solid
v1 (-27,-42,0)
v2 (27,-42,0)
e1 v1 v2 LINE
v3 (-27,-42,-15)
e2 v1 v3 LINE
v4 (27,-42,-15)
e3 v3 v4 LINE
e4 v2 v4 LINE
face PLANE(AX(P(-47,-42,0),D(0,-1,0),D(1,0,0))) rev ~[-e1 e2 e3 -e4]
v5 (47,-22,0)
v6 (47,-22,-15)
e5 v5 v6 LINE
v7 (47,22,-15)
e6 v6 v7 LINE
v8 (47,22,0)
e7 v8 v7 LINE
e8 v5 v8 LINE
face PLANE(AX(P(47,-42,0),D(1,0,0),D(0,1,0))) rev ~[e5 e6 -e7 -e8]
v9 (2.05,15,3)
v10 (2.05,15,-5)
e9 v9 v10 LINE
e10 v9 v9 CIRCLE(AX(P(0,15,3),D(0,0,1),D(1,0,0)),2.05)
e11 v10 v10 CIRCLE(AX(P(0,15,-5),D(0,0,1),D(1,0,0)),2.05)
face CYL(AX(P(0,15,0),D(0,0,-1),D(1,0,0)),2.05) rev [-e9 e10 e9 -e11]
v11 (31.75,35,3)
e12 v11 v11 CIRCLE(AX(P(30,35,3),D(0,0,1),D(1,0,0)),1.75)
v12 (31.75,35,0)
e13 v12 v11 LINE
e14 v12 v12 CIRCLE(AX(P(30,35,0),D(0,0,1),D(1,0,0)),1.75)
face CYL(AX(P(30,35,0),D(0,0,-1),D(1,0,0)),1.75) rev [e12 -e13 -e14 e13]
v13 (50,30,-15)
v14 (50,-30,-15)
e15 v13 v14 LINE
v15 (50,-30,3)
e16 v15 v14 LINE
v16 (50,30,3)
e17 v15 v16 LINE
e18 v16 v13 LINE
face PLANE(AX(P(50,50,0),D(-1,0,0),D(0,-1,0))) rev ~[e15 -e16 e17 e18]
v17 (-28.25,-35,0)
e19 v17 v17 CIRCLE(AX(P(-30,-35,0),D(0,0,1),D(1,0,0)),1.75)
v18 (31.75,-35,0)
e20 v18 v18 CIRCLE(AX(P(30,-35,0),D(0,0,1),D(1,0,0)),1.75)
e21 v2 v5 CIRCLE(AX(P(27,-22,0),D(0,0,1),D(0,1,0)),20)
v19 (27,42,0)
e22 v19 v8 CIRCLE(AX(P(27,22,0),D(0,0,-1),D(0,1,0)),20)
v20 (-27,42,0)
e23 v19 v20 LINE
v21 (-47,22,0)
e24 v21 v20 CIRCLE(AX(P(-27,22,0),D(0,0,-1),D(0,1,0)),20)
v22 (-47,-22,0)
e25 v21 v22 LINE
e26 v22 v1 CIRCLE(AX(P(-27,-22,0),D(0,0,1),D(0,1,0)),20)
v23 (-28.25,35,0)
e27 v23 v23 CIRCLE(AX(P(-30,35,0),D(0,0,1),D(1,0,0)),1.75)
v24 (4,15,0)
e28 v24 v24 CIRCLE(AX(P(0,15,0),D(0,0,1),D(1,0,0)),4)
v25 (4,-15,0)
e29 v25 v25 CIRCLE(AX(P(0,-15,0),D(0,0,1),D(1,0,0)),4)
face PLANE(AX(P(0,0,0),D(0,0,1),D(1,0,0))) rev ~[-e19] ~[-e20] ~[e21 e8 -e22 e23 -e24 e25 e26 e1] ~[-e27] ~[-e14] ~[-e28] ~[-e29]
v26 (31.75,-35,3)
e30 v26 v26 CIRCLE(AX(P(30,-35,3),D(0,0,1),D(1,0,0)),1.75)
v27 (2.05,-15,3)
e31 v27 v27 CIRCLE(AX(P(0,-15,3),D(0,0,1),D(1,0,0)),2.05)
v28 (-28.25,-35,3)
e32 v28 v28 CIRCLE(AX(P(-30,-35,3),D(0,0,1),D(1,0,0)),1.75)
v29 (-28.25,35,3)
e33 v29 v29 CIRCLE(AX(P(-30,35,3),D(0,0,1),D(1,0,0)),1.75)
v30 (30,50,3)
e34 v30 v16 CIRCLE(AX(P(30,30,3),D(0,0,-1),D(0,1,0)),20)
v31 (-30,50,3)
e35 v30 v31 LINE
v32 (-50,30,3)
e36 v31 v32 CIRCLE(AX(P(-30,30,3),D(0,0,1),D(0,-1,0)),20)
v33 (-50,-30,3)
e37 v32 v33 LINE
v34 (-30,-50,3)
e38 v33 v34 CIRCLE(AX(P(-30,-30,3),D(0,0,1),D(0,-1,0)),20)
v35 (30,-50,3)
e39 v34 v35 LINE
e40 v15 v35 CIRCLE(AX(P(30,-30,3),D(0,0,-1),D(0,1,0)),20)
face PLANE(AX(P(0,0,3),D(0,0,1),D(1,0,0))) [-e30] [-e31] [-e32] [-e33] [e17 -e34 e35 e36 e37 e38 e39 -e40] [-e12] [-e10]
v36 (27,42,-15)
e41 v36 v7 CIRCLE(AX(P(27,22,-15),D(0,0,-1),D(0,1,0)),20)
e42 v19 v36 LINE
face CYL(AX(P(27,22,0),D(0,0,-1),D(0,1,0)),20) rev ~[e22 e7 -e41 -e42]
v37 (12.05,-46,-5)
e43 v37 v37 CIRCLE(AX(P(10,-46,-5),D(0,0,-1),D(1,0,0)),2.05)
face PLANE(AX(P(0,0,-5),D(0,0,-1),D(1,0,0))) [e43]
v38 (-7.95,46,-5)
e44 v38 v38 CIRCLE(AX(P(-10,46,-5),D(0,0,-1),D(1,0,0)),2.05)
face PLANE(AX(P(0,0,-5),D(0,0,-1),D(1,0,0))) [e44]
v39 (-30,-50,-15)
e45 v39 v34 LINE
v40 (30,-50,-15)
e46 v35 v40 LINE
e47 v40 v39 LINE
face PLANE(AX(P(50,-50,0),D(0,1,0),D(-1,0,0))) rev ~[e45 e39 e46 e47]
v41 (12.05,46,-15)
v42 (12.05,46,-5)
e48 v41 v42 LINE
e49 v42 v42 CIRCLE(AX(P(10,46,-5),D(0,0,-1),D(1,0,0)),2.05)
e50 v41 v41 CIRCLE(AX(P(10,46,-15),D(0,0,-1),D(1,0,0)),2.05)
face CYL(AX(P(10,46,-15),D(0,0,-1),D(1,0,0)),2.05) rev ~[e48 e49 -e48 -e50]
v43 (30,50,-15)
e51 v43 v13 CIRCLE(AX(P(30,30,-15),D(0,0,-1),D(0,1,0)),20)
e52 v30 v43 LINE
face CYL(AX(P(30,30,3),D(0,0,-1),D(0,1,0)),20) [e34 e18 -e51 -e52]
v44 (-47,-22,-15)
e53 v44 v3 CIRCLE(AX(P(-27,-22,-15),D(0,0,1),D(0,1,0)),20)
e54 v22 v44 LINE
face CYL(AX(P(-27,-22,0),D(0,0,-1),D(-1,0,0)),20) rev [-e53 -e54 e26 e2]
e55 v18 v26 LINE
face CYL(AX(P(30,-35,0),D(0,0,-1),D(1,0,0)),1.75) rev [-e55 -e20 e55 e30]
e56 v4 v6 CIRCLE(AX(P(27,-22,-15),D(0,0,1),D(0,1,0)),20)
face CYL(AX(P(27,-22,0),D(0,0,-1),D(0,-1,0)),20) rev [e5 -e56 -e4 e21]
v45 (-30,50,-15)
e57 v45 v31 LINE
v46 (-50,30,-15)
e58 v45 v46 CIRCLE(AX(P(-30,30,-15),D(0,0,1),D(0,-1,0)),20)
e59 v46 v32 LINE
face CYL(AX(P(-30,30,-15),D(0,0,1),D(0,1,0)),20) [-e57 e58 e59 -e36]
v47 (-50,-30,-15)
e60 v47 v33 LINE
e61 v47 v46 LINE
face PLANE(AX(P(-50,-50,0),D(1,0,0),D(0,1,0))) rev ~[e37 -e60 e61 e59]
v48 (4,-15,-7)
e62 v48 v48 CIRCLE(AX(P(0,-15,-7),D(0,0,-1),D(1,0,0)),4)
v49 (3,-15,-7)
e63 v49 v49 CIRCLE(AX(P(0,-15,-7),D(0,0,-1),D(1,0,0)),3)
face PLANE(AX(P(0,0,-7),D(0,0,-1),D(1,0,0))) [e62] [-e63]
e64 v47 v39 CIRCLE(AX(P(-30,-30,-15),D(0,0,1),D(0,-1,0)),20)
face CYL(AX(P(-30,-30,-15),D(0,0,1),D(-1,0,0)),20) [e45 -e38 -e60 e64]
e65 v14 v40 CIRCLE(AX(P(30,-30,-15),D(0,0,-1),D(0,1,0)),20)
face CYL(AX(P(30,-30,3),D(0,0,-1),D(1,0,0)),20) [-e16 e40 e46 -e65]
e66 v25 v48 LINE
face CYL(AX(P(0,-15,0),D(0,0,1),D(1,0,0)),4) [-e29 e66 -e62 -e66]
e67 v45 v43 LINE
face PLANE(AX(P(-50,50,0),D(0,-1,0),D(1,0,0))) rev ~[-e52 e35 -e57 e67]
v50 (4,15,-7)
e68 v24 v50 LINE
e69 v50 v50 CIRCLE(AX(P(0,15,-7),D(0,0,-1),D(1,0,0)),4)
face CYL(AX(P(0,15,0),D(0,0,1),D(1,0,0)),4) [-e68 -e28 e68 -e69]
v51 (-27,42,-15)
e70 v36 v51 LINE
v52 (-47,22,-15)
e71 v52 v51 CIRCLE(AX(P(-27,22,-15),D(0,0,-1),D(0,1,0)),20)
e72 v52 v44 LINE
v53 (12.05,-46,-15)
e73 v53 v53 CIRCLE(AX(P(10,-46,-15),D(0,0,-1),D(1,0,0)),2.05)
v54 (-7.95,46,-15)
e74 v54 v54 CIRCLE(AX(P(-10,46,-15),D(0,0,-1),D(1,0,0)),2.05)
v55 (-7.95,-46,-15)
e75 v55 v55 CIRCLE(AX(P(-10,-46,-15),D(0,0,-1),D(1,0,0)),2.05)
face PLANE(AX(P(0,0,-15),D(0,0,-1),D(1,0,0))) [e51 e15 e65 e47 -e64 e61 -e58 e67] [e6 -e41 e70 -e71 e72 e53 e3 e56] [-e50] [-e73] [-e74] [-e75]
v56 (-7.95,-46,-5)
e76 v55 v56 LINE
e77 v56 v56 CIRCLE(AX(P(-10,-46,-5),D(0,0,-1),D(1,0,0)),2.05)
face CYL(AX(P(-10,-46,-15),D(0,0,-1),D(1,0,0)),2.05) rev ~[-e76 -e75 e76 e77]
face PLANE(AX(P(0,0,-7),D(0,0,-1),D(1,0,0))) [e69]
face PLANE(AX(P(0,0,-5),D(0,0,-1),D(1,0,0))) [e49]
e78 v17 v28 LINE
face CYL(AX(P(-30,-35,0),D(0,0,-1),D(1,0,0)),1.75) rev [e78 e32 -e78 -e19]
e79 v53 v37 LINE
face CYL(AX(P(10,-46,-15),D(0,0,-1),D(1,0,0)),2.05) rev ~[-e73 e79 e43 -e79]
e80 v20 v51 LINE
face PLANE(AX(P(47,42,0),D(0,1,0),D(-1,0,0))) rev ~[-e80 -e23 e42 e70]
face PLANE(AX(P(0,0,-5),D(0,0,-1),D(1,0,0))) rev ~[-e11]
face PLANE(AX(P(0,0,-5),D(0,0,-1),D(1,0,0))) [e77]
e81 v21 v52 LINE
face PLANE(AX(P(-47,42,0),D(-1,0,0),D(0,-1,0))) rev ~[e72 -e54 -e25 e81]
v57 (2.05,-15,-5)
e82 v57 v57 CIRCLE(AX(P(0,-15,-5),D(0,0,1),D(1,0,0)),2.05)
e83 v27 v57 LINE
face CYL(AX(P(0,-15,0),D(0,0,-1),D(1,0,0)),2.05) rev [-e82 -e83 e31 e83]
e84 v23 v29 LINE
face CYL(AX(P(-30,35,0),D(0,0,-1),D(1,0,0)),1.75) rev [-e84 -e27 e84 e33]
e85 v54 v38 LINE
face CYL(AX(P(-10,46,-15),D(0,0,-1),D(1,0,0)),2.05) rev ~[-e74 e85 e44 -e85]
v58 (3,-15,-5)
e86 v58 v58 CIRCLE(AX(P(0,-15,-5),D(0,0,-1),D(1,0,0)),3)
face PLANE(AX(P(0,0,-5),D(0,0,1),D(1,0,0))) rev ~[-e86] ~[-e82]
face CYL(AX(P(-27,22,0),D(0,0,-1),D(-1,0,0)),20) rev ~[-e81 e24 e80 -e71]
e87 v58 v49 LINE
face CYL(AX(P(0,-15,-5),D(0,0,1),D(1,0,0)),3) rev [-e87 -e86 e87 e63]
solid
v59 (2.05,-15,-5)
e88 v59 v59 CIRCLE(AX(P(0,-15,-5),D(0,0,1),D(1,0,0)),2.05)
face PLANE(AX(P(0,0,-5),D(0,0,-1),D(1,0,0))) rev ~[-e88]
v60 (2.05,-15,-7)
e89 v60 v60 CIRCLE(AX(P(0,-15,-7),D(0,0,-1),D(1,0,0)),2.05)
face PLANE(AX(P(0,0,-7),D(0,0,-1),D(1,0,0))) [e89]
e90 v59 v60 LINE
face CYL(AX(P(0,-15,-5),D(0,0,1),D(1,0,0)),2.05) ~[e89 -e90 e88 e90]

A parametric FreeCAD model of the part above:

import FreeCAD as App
import Part
import Sketcher
from FreeCAD import Vector


def edges_at(feature, points):
    """Names of the edges that pass closest to the given points."""
    edges = feature.Shape.Edges
    near = lambda p: min(range(len(edges)), key=lambda i: edges[i].distToShape(Part.Vertex(*p))[0])
    return sorted({f"Edge{near(p) + 1}" for p in points})

doc = App.newDocument("Part")
params = doc.addObject("Spreadsheet::Sheet", "Params")
for row, (alias, value) in enumerate([
    ("sketch1_diameter", "3.5 mm"),
    ("sketch1_diameter2", "4.1 mm"),
    ("sketch1_width", "100 mm"),
    ("pad1_length", "3 mm"),
    ("sketch2_diameter", "8 mm"),
    ("sketch2_diameter2", "4.1 mm"),
    ("pad2_length", "5 mm"),
    ("sketch3_diameter", "8 mm"),
    ("sketch3_diameter2", "6 mm"),
    ("sketch3_diameter3", "4.1 mm"),
    ("pad3_length", "2 mm"),
    ("sketch4_width", "100 mm"),
    ("pad4_length", "15 mm"),
    ("sketch5_diameter", "4.1 mm"),
    ("pocket1_length", "10 mm"),
    ("fillet_radius", "20 mm"),
], start=1):
    params.set(f"A{row}", alias)
    params.set(f"B{row}", "=" + value)
    params.setAlias(f"B{row}", alias)

body = doc.addObject("PartDesign::Body", "Body")
body.AllowCompound = True

sketch1 = body.newObject("Sketcher::SketchObject", "Sketch")
sketch1.AttachmentSupport = (doc.getObject("XY_Plane"), [""])
sketch1.MapMode = "FlatFace"
sketch1.addGeometry([
    Part.LineSegment(Vector(50, -50, 0), Vector(50, 50, 0)),
    Part.LineSegment(Vector(50, 50, 0), Vector(-50, 50, 0)),
    Part.LineSegment(Vector(-50, 50, 0), Vector(-50, -50, 0)),
    Part.LineSegment(Vector(-50, -50, 0), Vector(50, -50, 0)),
    Part.Circle(Vector(-30, -35, 0), Vector(0, 0, 1), 1.8),
    Part.Circle(Vector(30, -35, 0), Vector(0, 0, 1), 1.8),
    Part.Circle(Vector(-30, 35, 0), Vector(0, 0, 1), 1.8),
    Part.Circle(Vector(30, 35, 0), Vector(0, 0, 1), 1.8),
    Part.Circle(Vector(0, -15, 0), Vector(0, 0, 1), 2),
    Part.Circle(Vector(0, 15, 0), Vector(0, 0, 1), 2),
], False)
sketch1.addConstraint([
    Sketcher.Constraint("Coincident", 0, 2, 1, 1),
    Sketcher.Constraint("Coincident", 1, 2, 2, 1),
    Sketcher.Constraint("Coincident", 2, 2, 3, 1),
    Sketcher.Constraint("Coincident", 3, 2, 0, 1),
    Sketcher.Constraint("Vertical", 0),
    Sketcher.Constraint("Horizontal", 1),
    Sketcher.Constraint("Vertical", 2),
    Sketcher.Constraint("Horizontal", 3),
    Sketcher.Constraint("Equal", 4, 5),
    Sketcher.Constraint("Equal", 5, 6),
    Sketcher.Constraint("Equal", 6, 7),
    Sketcher.Constraint("Equal", 8, 9),
    Sketcher.Constraint("Symmetric", 5, 3, 6, 3, -1, 1),
    Sketcher.Constraint("Symmetric", 4, 3, 7, 3, -1, 1),
    Sketcher.Constraint("Symmetric", 8, 3, 9, 3, -1, 1),
    Sketcher.Constraint("Symmetric", 0, 2, 2, 2, -1, 1),
    Sketcher.Constraint("Symmetric", 4, 3, 5, 3, -2),
    Sketcher.Constraint("PointOnObject", 8, 3, -2),
    Sketcher.Constraint("Equal", 3, 0),
    Sketcher.Constraint("Diameter", 4, 3.5),
    Sketcher.Constraint("Diameter", 8, 4.1),
    Sketcher.Constraint("DistanceX", 1, 2, 1, 1, 100.0),
    Sketcher.Constraint("DistanceX", 4, 3, -1, 1, 30.0),
    Sketcher.Constraint("DistanceY", 4, 3, -1, 1, 35.0),
    Sketcher.Constraint("DistanceY", 8, 3, -1, 1, 15.0),
])
sketch1.setExpression("Constraints[19]", "Params.sketch1_diameter")
sketch1.setExpression("Constraints[20]", "Params.sketch1_diameter2")
sketch1.setExpression("Constraints[21]", "Params.sketch1_width")
pad1 = body.newObject("PartDesign::Pad", "Pad")
pad1.Profile = sketch1
pad1.setExpression("Length", "Params.pad1_length")

sketch2 = body.newObject("Sketcher::SketchObject", "Sketch001")
sketch2.AttachmentSupport = (doc.getObject("XY_Plane"), [""])
sketch2.MapMode = "FlatFace"
sketch2.addGeometry([
    Part.Circle(Vector(0, 15, 0), Vector(0, 0, 1), 4),
    Part.Circle(Vector(0, 15, 0), Vector(0, 0, 1), 2),
    Part.Circle(Vector(0, -15, 0), Vector(0, 0, 1), 4),
    Part.Circle(Vector(0, -15, 0), Vector(0, 0, 1), 2),
], False)
sketch2.addConstraint([
    Sketcher.Constraint("Coincident", 1, 3, 0, 3),
    Sketcher.Constraint("Coincident", 3, 3, 2, 3),
    Sketcher.Constraint("Equal", 0, 2),
    Sketcher.Constraint("Equal", 1, 3),
    Sketcher.Constraint("Symmetric", 0, 3, 2, 3, -1, 1),
    Sketcher.Constraint("PointOnObject", 0, 3, -2),
    Sketcher.Constraint("Diameter", 0, 8.0),
    Sketcher.Constraint("Diameter", 1, 4.1),
    Sketcher.Constraint("DistanceY", -1, 1, 0, 3, 15.0),
])
sketch2.setExpression("Constraints[6]", "Params.sketch2_diameter")
sketch2.setExpression("Constraints[7]", "Params.sketch2_diameter2")
pad2 = body.newObject("PartDesign::Pad", "Pad001")
pad2.Profile = sketch2
pad2.setExpression("Length", "Params.pad2_length")
pad2.Reversed = True

sketch3 = body.newObject("Sketcher::SketchObject", "Sketch002")
sketch3.AttachmentSupport = (doc.getObject("XY_Plane"), [""])
sketch3.MapMode = "FlatFace"
sketch3.AttachmentOffset = App.Placement(Vector(0, 0, -5), App.Rotation())
sketch3.addGeometry([
    Part.Circle(Vector(0, -15, 0), Vector(0, 0, 1), 2),
    Part.Circle(Vector(0, -15, 0), Vector(0, 0, 1), 4),
    Part.Circle(Vector(0, -15, 0), Vector(0, 0, 1), 3),
    Part.Circle(Vector(0, 15, 0), Vector(0, 0, 1), 4),
], False)
sketch3.addConstraint([
    Sketcher.Constraint("Coincident", 1, 3, 0, 3),
    Sketcher.Constraint("Coincident", 2, 3, 0, 3),
    Sketcher.Constraint("Equal", 1, 3),
    Sketcher.Constraint("Symmetric", 0, 3, 3, 3, -1, 1),
    Sketcher.Constraint("PointOnObject", 0, 3, -2),
    Sketcher.Constraint("Diameter", 1, 8.0),
    Sketcher.Constraint("Diameter", 2, 6.0),
    Sketcher.Constraint("Diameter", 0, 4.1),
    Sketcher.Constraint("DistanceY", 0, 3, -1, 1, 15.0),
])
sketch3.setExpression("Constraints[5]", "Params.sketch3_diameter")
sketch3.setExpression("Constraints[6]", "Params.sketch3_diameter2")
sketch3.setExpression("Constraints[7]", "Params.sketch3_diameter3")
pad3 = body.newObject("PartDesign::Pad", "Pad002")
pad3.Profile = sketch3
pad3.setExpression("Length", "Params.pad3_length")
pad3.Reversed = True

sketch4 = body.newObject("Sketcher::SketchObject", "Sketch003")
sketch4.AttachmentSupport = (doc.getObject("XY_Plane"), [""])
sketch4.MapMode = "FlatFace"
sketch4.addGeometry([
    Part.LineSegment(Vector(-50, 50, 0), Vector(50, 50, 0)),
    Part.LineSegment(Vector(50, 50, 0), Vector(50, -50, 0)),
    Part.LineSegment(Vector(50, -50, 0), Vector(-50, -50, 0)),
    Part.LineSegment(Vector(-50, -50, 0), Vector(-50, 50, 0)),
    Part.LineSegment(Vector(-47, 42, 0), Vector(-47, -42, 0)),
    Part.LineSegment(Vector(-47, -42, 0), Vector(47, -42, 0)),
    Part.LineSegment(Vector(47, -42, 0), Vector(47, 42, 0)),
    Part.LineSegment(Vector(47, 42, 0), Vector(-47, 42, 0)),
], False)
sketch4.addConstraint([
    Sketcher.Constraint("Coincident", 0, 2, 1, 1),
    Sketcher.Constraint("Coincident", 1, 2, 2, 1),
    Sketcher.Constraint("Coincident", 2, 2, 3, 1),
    Sketcher.Constraint("Coincident", 3, 2, 0, 1),
    Sketcher.Constraint("Coincident", 4, 2, 5, 1),
    Sketcher.Constraint("Coincident", 5, 2, 6, 1),
    Sketcher.Constraint("Coincident", 6, 2, 7, 1),
    Sketcher.Constraint("Coincident", 7, 2, 4, 1),
    Sketcher.Constraint("Horizontal", 0),
    Sketcher.Constraint("Vertical", 1),
    Sketcher.Constraint("Horizontal", 2),
    Sketcher.Constraint("Vertical", 3),
    Sketcher.Constraint("Vertical", 4),
    Sketcher.Constraint("Horizontal", 5),
    Sketcher.Constraint("Vertical", 6),
    Sketcher.Constraint("Horizontal", 7),
    Sketcher.Constraint("Symmetric", 0, 2, 2, 2, -1, 1),
    Sketcher.Constraint("Symmetric", 4, 2, 6, 2, -1, 1),
    Sketcher.Constraint("Equal", 2, 1),
    Sketcher.Constraint("DistanceX", 2, 2, 4, 2, 3.0),
    Sketcher.Constraint("DistanceY", 2, 2, 4, 2, 8.0),
    Sketcher.Constraint("DistanceX", 0, 1, 0, 2, 100.0),
])
sketch4.setExpression("Constraints[21]", "Params.sketch4_width")
pad4 = body.newObject("PartDesign::Pad", "Pad003")
pad4.Profile = sketch4
pad4.setExpression("Length", "Params.pad4_length")
pad4.Reversed = True

sketch5 = body.newObject("Sketcher::SketchObject", "Sketch004")
sketch5.AttachmentSupport = (doc.getObject("XY_Plane"), [""])
sketch5.MapMode = "FlatFace"
sketch5.AttachmentOffset = App.Placement(Vector(0, 0, -15), App.Rotation())
sketch5.addGeometry([
    Part.Circle(Vector(10, -46, 0), Vector(0, 0, 1), 2),
    Part.Circle(Vector(-10, -46, 0), Vector(0, 0, 1), 2),
    Part.Circle(Vector(10, 46, 0), Vector(0, 0, 1), 2),
    Part.Circle(Vector(-10, 46, 0), Vector(0, 0, 1), 2),
], False)
sketch5.addConstraint([
    Sketcher.Constraint("Equal", 0, 1),
    Sketcher.Constraint("Equal", 1, 2),
    Sketcher.Constraint("Equal", 2, 3),
    Sketcher.Constraint("Symmetric", 1, 3, 2, 3, -1, 1),
    Sketcher.Constraint("Symmetric", 0, 3, 3, 3, -1, 1),
    Sketcher.Constraint("Symmetric", 0, 3, 1, 3, -2),
    Sketcher.Constraint("Diameter", 0, 4.1),
    Sketcher.Constraint("DistanceX", -1, 1, 0, 3, 10.0),
    Sketcher.Constraint("DistanceY", 0, 3, -1, 1, 46.0),
])
sketch5.setExpression("Constraints[6]", "Params.sketch5_diameter")
pocket1 = body.newObject("PartDesign::Pocket", "Pocket")
pocket1.Profile = sketch5
pocket1.setExpression("Length", "Params.pocket1_length")
pocket1.Reversed = True
doc.recompute()

fillet = body.newObject("PartDesign::Fillet", "Fillet")
fillet.Base = (pocket1, edges_at(pocket1, [
    (47, -42, -7.5),
    (47, 42, -7.5),
    (-47, -42, -7.5),
    (50, -50, -6),
    (-50, -50, -6),
    (-50, 50, -6),
    (-47, 42, -7.5),
    (50, 50, -6),
]))
fillet.setExpression("Radius", "Params.fillet_radius")

doc.recompute()
